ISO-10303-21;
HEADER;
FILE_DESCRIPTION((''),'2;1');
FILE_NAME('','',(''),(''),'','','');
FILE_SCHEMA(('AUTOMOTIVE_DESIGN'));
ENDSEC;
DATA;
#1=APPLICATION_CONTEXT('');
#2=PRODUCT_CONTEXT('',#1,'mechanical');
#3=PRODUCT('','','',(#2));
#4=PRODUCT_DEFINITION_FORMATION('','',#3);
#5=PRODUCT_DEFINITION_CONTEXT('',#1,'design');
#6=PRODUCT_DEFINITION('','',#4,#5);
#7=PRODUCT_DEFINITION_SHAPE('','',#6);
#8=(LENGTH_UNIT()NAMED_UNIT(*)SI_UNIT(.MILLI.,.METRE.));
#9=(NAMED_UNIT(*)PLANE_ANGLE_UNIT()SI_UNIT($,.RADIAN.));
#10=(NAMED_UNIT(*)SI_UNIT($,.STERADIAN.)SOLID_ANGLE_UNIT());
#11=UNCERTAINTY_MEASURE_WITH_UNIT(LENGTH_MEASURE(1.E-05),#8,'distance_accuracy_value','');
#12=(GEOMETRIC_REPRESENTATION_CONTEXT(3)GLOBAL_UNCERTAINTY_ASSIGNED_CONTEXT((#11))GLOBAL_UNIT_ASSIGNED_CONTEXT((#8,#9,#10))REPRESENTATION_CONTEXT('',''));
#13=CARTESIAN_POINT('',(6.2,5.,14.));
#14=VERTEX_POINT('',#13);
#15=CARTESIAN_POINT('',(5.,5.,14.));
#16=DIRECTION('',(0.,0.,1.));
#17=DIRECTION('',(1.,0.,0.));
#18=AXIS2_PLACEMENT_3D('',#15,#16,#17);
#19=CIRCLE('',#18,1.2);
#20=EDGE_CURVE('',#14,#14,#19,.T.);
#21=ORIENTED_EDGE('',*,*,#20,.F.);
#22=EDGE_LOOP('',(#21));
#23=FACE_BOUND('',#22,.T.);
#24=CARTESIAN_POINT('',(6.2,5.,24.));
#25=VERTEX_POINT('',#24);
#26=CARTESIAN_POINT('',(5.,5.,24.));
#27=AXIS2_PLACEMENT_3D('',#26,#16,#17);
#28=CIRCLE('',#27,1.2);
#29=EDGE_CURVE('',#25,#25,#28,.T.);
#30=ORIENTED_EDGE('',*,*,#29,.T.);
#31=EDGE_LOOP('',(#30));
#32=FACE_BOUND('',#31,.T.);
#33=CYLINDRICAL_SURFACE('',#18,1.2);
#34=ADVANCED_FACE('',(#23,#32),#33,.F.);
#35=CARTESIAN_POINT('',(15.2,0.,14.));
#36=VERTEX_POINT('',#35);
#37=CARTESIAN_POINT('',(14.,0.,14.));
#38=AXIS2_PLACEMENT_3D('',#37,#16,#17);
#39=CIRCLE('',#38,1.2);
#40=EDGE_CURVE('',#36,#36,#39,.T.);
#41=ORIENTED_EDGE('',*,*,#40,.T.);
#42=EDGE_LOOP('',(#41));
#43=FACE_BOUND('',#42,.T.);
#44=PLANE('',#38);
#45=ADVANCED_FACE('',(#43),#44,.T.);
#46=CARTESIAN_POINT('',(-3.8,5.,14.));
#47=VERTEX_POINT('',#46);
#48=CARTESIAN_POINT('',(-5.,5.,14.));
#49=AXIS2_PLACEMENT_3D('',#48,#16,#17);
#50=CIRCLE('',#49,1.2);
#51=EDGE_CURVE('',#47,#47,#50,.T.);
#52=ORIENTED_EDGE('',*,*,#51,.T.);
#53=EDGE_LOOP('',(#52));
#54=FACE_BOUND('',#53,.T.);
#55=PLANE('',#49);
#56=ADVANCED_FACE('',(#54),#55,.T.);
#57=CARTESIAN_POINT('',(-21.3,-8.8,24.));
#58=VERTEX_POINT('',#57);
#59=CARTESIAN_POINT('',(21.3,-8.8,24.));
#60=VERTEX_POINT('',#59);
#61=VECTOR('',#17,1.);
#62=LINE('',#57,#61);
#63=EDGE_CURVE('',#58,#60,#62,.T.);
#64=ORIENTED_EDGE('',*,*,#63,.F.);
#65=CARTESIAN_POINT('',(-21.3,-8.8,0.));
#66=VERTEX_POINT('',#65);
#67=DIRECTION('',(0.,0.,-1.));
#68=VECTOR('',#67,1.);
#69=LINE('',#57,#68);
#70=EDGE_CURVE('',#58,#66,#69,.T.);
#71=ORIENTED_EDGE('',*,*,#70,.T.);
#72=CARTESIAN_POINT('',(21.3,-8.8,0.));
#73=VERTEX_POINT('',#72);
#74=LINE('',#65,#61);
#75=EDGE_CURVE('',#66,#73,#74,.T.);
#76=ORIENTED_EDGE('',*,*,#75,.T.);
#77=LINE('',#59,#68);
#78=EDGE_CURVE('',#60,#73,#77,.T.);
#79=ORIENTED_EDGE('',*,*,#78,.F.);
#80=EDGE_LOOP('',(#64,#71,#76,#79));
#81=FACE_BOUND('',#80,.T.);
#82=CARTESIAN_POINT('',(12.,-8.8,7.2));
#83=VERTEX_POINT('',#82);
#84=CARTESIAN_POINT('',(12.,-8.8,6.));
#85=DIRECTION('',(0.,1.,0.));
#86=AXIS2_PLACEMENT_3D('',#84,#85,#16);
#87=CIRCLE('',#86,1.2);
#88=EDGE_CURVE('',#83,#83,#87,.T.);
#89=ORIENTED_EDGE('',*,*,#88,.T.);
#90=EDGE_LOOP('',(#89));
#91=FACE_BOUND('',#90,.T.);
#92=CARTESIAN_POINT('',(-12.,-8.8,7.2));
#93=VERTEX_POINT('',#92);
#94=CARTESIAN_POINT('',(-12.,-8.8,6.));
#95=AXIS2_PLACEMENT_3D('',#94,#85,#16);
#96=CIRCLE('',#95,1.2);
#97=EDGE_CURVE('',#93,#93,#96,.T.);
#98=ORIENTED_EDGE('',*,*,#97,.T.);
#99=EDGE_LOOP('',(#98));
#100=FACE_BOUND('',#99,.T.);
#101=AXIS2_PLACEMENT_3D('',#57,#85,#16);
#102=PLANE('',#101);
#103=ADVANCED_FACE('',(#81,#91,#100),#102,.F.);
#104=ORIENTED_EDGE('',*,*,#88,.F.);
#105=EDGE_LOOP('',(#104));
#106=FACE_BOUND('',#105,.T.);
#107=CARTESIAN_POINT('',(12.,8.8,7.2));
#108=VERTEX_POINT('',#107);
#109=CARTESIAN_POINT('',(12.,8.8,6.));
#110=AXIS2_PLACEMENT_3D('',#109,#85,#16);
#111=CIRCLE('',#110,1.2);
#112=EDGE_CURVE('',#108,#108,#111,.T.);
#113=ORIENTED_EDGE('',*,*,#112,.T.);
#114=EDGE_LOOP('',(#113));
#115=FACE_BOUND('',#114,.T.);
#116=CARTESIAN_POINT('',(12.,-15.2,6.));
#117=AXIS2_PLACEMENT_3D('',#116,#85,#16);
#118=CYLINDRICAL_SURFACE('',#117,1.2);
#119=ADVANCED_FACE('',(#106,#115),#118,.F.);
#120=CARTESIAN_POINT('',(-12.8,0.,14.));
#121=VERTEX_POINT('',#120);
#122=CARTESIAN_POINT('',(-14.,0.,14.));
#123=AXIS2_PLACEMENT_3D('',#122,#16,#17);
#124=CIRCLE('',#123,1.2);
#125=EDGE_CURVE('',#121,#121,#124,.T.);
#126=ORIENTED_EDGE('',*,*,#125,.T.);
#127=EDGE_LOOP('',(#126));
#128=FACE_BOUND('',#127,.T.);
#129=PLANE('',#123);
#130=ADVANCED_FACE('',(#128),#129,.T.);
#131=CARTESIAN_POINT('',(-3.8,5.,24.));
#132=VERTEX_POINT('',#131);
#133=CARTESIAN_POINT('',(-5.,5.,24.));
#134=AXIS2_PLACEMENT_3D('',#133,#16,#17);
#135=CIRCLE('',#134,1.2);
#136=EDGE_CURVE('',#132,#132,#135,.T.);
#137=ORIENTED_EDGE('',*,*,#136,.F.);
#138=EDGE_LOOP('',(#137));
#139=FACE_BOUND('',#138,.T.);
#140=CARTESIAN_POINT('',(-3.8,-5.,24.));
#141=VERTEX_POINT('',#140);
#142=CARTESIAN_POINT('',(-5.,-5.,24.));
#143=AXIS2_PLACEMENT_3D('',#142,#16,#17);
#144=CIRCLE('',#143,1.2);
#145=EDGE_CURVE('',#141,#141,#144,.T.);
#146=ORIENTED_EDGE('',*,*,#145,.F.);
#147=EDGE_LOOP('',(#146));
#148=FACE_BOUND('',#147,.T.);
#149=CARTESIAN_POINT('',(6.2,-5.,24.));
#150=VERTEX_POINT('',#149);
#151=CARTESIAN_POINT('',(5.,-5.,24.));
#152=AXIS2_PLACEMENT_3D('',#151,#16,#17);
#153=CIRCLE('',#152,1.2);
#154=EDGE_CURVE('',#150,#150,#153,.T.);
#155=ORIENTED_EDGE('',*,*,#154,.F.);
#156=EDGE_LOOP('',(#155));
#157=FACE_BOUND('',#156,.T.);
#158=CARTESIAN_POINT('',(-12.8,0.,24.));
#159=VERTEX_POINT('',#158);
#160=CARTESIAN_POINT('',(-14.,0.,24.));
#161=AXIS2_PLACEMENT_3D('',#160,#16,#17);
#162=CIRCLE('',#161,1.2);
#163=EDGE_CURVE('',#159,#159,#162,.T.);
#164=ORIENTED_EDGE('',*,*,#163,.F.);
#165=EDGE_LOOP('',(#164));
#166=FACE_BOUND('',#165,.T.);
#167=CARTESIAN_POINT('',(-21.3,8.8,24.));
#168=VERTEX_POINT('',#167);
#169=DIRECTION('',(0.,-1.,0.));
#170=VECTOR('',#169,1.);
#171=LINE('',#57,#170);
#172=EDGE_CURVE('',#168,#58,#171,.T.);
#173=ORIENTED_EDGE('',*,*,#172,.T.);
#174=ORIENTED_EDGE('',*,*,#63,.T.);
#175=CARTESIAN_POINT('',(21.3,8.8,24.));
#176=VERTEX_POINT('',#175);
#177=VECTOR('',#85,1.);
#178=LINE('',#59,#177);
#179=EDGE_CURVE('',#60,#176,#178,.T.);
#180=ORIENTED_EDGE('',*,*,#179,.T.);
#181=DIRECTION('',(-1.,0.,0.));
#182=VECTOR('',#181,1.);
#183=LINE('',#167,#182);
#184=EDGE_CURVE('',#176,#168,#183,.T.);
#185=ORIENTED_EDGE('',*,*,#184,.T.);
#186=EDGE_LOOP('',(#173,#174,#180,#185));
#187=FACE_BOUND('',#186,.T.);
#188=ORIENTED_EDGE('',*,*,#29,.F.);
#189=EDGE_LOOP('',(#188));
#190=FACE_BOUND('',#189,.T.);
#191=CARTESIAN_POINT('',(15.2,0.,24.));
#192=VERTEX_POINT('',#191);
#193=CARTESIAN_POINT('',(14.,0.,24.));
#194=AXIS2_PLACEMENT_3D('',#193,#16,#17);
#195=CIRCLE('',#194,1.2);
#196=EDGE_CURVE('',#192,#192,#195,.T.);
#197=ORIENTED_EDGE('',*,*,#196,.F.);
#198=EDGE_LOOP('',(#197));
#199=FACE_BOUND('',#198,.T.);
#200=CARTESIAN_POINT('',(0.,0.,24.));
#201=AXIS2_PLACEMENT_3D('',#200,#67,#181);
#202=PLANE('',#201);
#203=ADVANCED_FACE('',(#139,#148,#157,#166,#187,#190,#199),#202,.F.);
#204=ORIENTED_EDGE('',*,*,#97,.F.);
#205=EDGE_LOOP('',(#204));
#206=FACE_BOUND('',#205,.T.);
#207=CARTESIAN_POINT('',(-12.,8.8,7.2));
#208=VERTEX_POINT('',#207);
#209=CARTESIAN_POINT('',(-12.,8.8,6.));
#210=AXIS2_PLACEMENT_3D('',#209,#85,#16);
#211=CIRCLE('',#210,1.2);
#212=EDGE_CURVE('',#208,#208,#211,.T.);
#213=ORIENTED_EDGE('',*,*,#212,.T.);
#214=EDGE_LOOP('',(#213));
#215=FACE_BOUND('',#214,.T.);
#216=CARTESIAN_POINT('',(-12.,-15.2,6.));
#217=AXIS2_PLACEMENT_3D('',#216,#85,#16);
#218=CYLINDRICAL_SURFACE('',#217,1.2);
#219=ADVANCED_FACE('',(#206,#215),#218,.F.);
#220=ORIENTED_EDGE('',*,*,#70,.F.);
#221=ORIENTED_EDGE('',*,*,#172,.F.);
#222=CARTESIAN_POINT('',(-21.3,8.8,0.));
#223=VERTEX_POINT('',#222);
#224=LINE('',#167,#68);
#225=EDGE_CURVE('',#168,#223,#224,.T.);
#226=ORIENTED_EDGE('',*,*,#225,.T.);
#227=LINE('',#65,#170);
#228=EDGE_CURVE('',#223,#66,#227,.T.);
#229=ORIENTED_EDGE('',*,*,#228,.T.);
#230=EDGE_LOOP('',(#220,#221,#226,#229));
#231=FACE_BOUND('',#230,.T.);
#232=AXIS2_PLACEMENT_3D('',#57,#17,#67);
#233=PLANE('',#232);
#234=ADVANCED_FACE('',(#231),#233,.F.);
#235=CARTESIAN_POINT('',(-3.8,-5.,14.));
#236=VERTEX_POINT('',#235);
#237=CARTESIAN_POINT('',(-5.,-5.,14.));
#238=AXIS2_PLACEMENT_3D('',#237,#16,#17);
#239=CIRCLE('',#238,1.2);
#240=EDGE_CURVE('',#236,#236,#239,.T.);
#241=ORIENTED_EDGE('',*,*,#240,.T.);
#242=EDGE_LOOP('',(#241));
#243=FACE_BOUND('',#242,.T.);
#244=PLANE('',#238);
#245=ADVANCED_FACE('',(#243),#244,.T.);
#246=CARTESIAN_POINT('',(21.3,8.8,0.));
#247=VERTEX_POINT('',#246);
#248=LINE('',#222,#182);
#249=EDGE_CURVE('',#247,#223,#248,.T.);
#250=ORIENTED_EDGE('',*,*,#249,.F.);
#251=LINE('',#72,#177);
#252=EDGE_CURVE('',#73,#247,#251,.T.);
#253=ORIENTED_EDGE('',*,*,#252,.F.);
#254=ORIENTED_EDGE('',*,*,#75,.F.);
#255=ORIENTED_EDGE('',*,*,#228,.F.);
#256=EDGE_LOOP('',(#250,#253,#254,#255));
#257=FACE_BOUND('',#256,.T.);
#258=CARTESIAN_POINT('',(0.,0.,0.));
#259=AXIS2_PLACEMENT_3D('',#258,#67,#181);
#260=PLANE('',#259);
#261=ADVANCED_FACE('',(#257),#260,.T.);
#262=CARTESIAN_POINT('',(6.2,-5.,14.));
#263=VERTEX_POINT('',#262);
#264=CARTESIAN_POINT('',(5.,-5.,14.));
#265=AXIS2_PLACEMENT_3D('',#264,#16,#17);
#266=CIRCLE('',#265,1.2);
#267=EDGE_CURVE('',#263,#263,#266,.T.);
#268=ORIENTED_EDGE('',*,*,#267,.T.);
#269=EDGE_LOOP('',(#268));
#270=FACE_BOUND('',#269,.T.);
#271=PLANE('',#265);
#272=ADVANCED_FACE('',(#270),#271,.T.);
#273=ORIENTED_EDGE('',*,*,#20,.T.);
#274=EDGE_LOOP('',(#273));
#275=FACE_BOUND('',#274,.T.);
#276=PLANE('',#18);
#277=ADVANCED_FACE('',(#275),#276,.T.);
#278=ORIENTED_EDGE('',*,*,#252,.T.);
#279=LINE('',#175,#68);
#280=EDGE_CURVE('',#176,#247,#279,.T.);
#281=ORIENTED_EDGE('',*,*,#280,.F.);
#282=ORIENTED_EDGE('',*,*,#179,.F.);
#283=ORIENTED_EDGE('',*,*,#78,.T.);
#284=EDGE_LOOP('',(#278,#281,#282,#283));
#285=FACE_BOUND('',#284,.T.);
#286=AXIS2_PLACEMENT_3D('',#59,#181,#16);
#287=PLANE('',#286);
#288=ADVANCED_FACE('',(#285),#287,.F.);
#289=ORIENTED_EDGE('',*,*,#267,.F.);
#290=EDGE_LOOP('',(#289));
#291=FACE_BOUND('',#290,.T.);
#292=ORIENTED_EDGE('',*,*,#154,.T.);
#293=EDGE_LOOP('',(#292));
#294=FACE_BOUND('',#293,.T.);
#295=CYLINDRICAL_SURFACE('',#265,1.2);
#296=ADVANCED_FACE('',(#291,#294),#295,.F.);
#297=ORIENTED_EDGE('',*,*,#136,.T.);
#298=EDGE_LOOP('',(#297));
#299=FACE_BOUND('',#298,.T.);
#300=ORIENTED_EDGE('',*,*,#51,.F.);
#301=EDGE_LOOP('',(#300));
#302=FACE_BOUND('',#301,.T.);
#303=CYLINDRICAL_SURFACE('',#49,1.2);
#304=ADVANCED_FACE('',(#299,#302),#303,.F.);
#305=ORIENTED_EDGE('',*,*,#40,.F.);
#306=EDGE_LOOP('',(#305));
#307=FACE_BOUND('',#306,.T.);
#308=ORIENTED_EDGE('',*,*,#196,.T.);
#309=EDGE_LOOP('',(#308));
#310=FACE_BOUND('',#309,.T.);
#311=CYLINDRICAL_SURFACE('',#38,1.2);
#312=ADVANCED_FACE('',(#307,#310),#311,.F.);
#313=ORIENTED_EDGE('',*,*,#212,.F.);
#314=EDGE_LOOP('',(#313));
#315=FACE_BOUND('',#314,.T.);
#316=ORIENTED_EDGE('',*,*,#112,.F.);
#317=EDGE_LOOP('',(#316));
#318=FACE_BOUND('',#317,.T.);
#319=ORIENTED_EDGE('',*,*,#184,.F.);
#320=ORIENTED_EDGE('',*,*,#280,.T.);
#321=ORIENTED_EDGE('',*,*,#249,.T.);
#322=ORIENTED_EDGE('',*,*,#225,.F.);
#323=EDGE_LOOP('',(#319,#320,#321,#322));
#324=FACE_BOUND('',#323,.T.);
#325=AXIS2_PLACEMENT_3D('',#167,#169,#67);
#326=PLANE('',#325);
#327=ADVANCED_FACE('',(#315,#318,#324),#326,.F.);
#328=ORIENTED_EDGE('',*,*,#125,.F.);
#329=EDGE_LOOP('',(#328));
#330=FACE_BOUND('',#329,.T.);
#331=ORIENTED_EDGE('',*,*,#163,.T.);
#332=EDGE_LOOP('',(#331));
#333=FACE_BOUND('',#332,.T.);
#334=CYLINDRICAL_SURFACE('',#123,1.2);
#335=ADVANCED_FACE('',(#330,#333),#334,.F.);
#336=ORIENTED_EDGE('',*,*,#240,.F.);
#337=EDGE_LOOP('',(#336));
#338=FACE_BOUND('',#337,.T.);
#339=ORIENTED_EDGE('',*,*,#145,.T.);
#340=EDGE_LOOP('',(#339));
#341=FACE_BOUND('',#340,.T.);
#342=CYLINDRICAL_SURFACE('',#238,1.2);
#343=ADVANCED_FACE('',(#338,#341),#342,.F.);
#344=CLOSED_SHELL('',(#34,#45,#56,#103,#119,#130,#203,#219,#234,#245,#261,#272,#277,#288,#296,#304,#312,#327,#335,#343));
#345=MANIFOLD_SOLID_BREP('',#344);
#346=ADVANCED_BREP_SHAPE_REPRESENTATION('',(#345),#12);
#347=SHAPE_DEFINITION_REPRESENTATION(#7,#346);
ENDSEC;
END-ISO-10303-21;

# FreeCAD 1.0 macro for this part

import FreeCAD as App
import Part
import Sketcher
Q = App.Units.Quantity


def add_polygon(sketch, points):
    """Adds a closed chain of lines whose ends are joined by coincident constraints."""
    first, n = sketch.GeometryCount, len(points)
    for a, b in zip(points, points[1:] + points[:1]):
        sketch.addGeometry(Part.LineSegment(App.Vector(*a, 0), App.Vector(*b, 0)), False)
    for i in range(n):
        sketch.addConstraint(Sketcher.Constraint("Coincident", first + i, 2, first + (i + 1) % n, 1))

doc = App.newDocument("Part")
body = doc.addObject("PartDesign::Body", "Body")

# Sketch on XY plane
sketch1 = body.newObject("Sketcher::SketchObject", "Sketch")
sketch1.AttachmentSupport = (doc.getObject("XY_Plane"), [""])
sketch1.MapMode = "FlatFace"
add_polygon(sketch1, [(-21, 9), (-21, -9), (21, -9), (21, 9)])  # lines 0-3
sketch1.addConstraint([
    Sketcher.Constraint("Vertical", 0),
    Sketcher.Constraint("Horizontal", 1),
    Sketcher.Constraint("Vertical", 2),
    Sketcher.Constraint("Horizontal", 3),
    Sketcher.Constraint("Symmetric", 0, 2, 2, 2, -1, 1),
    Sketcher.Constraint("DistanceX", 1, 1, 1, 2, Q("42.6 mm")),
    Sketcher.Constraint("DistanceY", 0, 2, 0, 1, Q("17.6 mm")),
])
pad1 = body.newObject("PartDesign::Pad", "Pad")
pad1.Profile = sketch1
pad1.Length = 24

# Sketch on XZ plane
sketch2 = body.newObject("Sketcher::SketchObject", "Sketch001")
sketch2.AttachmentSupport = (doc.getObject("XZ_Plane"), [""])
sketch2.MapMode = "FlatFace"
sketch2.AttachmentOffset = App.Placement(App.Vector(0, 0, -8.8), App.Rotation())
sketch2.addGeometry([
    Part.Circle(App.Vector(-12, 6, 0), App.Vector(0, 0, 1), 1.2),
    Part.Circle(App.Vector(12, 6, 0), App.Vector(0, 0, 1), 1.2),
], False)
sketch2.addConstraint([
    Sketcher.Constraint("Equal", 0, 1),
    Sketcher.Constraint("Symmetric", 0, 3, 1, 3, -2),
    Sketcher.Constraint("Diameter", 0, Q("2.4 mm")),
    Sketcher.Constraint("DistanceX", 0, 3, -1, 1, Q("12 mm")),
    Sketcher.Constraint("DistanceY", -1, 1, 0, 3, Q("6 mm")),
])
pocket1 = body.newObject("PartDesign::Pocket", "Pocket")
pocket1.Profile = sketch2
pocket1.Length = 24
pocket1.Reversed = True

# Sketch on XY plane
sketch3 = body.newObject("Sketcher::SketchObject", "Sketch002")
sketch3.AttachmentSupport = (doc.getObject("XY_Plane"), [""])
sketch3.MapMode = "FlatFace"
sketch3.AttachmentOffset = App.Placement(App.Vector(0, 0, 24), App.Rotation())
sketch3.addGeometry([
    Part.Circle(App.Vector(-14, 0, 0), App.Vector(0, 0, 1), 1.2),  # 0
    Part.Circle(App.Vector(-5, 5, 0), App.Vector(0, 0, 1), 1.2),  # 1
    Part.Circle(App.Vector(5, 5, 0), App.Vector(0, 0, 1), 1.2),  # 2
    Part.Circle(App.Vector(14, 0, 0), App.Vector(0, 0, 1), 1.2),  # 3
    Part.Circle(App.Vector(5, -5, 0), App.Vector(0, 0, 1), 1.2),  # 4
    Part.Circle(App.Vector(-5, -5, 0), App.Vector(0, 0, 1), 1.2),  # 5
], False)
sketch3.addConstraint([
    Sketcher.Constraint("Equal", 0, 1),
    Sketcher.Constraint("Equal", 1, 2),
    Sketcher.Constraint("Equal", 2, 3),
    Sketcher.Constraint("Equal", 3, 4),
    Sketcher.Constraint("Equal", 4, 5),
    Sketcher.Constraint("Symmetric", 0, 3, 3, 3, -1, 1),
    Sketcher.Constraint("Symmetric", 1, 3, 4, 3, -1, 1),
    Sketcher.Constraint("Symmetric", 2, 3, 5, 3, -1, 1),
    Sketcher.Constraint("Symmetric", 1, 3, 2, 3, -2),
    Sketcher.Constraint("PointOnObject", 0, 3, -1),
    Sketcher.Constraint("Diameter", 0, Q("2.4 mm")),
    Sketcher.Constraint("DistanceX", 0, 3, -1, 1, Q("14 mm")),
    Sketcher.Constraint("DistanceX", 1, 3, -1, 1, Q("5 mm")),
    Sketcher.Constraint("DistanceY", -1, 1, 1, 3, Q("5 mm")),
])
pocket2 = body.newObject("PartDesign::Pocket", "Pocket001")
pocket2.Profile = sketch3
pocket2.Length = 10

doc.recompute()
